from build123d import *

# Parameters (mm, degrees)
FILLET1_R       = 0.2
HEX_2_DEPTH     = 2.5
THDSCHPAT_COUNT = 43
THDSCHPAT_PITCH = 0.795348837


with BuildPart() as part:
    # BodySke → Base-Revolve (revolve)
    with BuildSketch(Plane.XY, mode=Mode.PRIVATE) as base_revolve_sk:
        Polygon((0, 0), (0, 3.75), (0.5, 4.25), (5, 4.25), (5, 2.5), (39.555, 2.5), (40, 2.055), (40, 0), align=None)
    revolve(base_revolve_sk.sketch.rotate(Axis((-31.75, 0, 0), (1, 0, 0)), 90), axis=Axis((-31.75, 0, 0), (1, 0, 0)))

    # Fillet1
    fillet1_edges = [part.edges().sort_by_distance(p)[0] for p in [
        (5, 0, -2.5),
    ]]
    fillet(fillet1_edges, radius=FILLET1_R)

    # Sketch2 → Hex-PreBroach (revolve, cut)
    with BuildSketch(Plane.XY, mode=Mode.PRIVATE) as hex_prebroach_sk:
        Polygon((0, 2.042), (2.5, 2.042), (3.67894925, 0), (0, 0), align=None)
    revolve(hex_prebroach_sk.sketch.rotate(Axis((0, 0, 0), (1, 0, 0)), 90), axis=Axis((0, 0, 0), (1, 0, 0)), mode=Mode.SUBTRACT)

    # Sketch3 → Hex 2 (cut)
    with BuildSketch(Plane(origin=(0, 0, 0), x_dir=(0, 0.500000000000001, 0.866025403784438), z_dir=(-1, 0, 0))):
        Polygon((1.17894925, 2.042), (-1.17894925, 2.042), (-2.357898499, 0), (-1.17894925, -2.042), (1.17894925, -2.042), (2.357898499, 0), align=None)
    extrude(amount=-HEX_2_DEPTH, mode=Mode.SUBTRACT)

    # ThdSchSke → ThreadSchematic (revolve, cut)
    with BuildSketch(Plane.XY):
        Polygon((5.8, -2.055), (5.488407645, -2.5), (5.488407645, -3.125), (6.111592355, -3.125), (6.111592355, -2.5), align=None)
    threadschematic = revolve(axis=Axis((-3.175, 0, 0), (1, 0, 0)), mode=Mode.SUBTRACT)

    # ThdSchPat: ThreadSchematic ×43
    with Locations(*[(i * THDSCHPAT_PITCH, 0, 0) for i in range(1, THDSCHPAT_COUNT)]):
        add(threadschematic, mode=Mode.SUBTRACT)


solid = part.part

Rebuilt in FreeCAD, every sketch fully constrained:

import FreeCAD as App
import Part
import Sketcher
Q = App.Units.Quantity


def edges_at(feature, points):
    """Names of the edges that pass closest to the given points."""
    edges = feature.Shape.Edges
    near = lambda p: min(range(len(edges)), key=lambda i: edges[i].distToShape(Part.Vertex(*p))[0])
    return sorted({f"Edge{near(p) + 1}" for p in points})


def add_polygon(sketch, points):
    """Adds a closed chain of lines whose ends are joined by coincident constraints."""
    first, n = sketch.GeometryCount, len(points)
    for a, b in zip(points, points[1:] + points[:1]):
        sketch.addGeometry(Part.LineSegment(App.Vector(*a, 0), App.Vector(*b, 0)), False)
    for i in range(n):
        sketch.addConstraint(Sketcher.Constraint("Coincident", first + i, 2, first + (i + 1) % n, 1))

doc = App.newDocument("Part")
body = doc.addObject("PartDesign::Body", "Body")

sketch1 = doc.addObject("Sketcher::SketchObject", "Sketch")
body.addObject(sketch1)
sketch1.AttachmentSupport = (doc.XY_Plane, [""])
sketch1.MapMode = "FlatFace"
add_polygon(sketch1, [(0, 3.8), (0, 0), (40, 0), (40, 2.1), (39.6, 2.5), (5, 2.5), (5, 4.2), (0.5, 4.2)])
sketch1.addConstraint([
    Sketcher.Constraint("Vertical", 0),
    Sketcher.Constraint("Horizontal", 1),
    Sketcher.Constraint("Vertical", 2),
    Sketcher.Constraint("Horizontal", 4),
    Sketcher.Constraint("Vertical", 5),
    Sketcher.Constraint("Horizontal", 6),
    Sketcher.Constraint("Coincident", 0, 2, -1, 1),
    Sketcher.Constraint("Perpendicular", 3, 7),
    Sketcher.Constraint("DistanceX", 1, 1, 1, 2, 40.0),
    Sketcher.Constraint("Angle", 3, Q("135 deg")),
    Sketcher.Constraint("DistanceX", 6, 2, 6, 1, 4.5),
    Sketcher.Constraint("DistanceX", -1, 1, 4, 2, 5.0),
    Sketcher.Constraint("DistanceY", 0, 2, 0, 1, 3.75),
    Sketcher.Constraint("DistanceY", 5, 1, 5, 2, 1.75),
    Sketcher.Constraint("DistanceX", 4, 2, 4, 1, 34.555),
])
revolution = doc.addObject("PartDesign::Revolution", "Revolution")
body.addObject(revolution)
revolution.Profile = sketch1
revolution.ReferenceAxis = (sketch1, ["H_Axis"])
revolution.Angle = 360
doc.recompute()

fillet = doc.addObject("PartDesign::Fillet", "Fillet")
body.addObject(fillet)
fillet.Base = (revolution, edges_at(revolution, [(5, 0, -2.5)]))
fillet.Radius = 0.2

sketch2 = doc.addObject("Sketcher::SketchObject", "Sketch001")
body.addObject(sketch2)
sketch2.AttachmentSupport = (doc.XY_Plane, [""])
sketch2.MapMode = "FlatFace"
add_polygon(sketch2, [(2.5, 2), (0, 2), (0, 0), (3.7, 0)])
sketch2.addConstraint([
    Sketcher.Constraint("Horizontal", 0),
    Sketcher.Constraint("Vertical", 1),
    Sketcher.Constraint("Horizontal", 2),
    Sketcher.Constraint("Coincident", 1, 2, -1, 1),
    Sketcher.Constraint("Angle", 3, Q("120 deg")),
    Sketcher.Constraint("DistanceX", 0, 2, 0, 1, 2.5),
    Sketcher.Constraint("DistanceY", 1, 2, 1, 1, 2.042),
])
groove = doc.addObject("PartDesign::Groove", "Groove")
body.addObject(groove)
groove.Profile = sketch2
groove.ReferenceAxis = (sketch2, ["H_Axis"])
groove.Angle = 360

sketch3 = doc.addObject("Sketcher::SketchObject", "Sketch002")
body.addObject(sketch3)
sketch3.AttachmentSupport = (doc.YZ_Plane, [""])
sketch3.MapMode = "FlatFace"
add_polygon(sketch3, [(2.4, 0), (1.2, -2), (-1.2, -2), (-2.4, 0), (-1.2, 2), (1.2, 2)])
sketch3.addConstraint([
    Sketcher.Constraint("Horizontal", 1),
    Sketcher.Constraint("Horizontal", 4),
    Sketcher.Constraint("Symmetric", 0, 2, 3, 2, -1, 1),
    Sketcher.Constraint("Symmetric", 2, 2, 5, 2, -1, 1),
    Sketcher.Constraint("PointOnObject", 2, 2, -1),
    Sketcher.Constraint("Parallel", 2, 5),
    Sketcher.Constraint("Vertical", 1, 2, 3, 2),
    Sketcher.Constraint("Angle", 0, Q("-120 deg")),
    Sketcher.Constraint("DistanceX", 1, 2, 1, 1, 2.357899),
    Sketcher.Constraint("DistanceY", 0, 2, -1, 1, 2.042),
])
pocket1 = doc.addObject("PartDesign::Pocket", "Pocket")
body.addObject(pocket1)
pocket1.Profile = sketch3
pocket1.Length = 2.5
pocket1.Reversed = True

sketch4 = doc.addObject("Sketcher::SketchObject", "Sketch003")
body.addObject(sketch4)
sketch4.AttachmentSupport = (doc.XY_Plane, [""])
sketch4.MapMode = "FlatFace"
add_polygon(sketch4, [(5.8, -2.1), (5.5, -2.5), (5.5, -3.1), (6.1, -3.1), (6.1, -2.5)])
sketch4.addConstraint([
    Sketcher.Constraint("Vertical", 1),
    Sketcher.Constraint("Horizontal", 2),
    Sketcher.Constraint("Vertical", 3),
    Sketcher.Constraint("Horizontal", 0, 2, 3, 2),
    Sketcher.Constraint("Equal", 0, 4),
    Sketcher.Constraint("Angle", 0, Q("-125 deg")),
    Sketcher.Constraint("DistanceY", 0, 2, -1, 1, 2.5),
    Sketcher.Constraint("DistanceX", -1, 1, 4, 2, 5.8),
    Sketcher.Constraint("DistanceY", 1, 2, 1, 1, 0.625),
    Sketcher.Constraint("DistanceY", 1, 2, 4, 2, 1.07),
])
groove2 = doc.addObject("PartDesign::Groove", "Groove001")
body.addObject(groove2)
groove2.Profile = sketch4
groove2.ReferenceAxis = (sketch4, ["H_Axis"])
groove2.Angle = 360
doc.recompute()

linearpattern = doc.addObject("PartDesign::LinearPattern", "LinearPattern")
body.addObject(linearpattern)
linearpattern.Originals = [groove2]
linearpattern.Direction = (doc.X_Axis, [""])
linearpattern.Mode = "offset"
linearpattern.Offset = 0.795349
linearpattern.Occurrences = 43
body.Tip = linearpattern

doc.recompute()
